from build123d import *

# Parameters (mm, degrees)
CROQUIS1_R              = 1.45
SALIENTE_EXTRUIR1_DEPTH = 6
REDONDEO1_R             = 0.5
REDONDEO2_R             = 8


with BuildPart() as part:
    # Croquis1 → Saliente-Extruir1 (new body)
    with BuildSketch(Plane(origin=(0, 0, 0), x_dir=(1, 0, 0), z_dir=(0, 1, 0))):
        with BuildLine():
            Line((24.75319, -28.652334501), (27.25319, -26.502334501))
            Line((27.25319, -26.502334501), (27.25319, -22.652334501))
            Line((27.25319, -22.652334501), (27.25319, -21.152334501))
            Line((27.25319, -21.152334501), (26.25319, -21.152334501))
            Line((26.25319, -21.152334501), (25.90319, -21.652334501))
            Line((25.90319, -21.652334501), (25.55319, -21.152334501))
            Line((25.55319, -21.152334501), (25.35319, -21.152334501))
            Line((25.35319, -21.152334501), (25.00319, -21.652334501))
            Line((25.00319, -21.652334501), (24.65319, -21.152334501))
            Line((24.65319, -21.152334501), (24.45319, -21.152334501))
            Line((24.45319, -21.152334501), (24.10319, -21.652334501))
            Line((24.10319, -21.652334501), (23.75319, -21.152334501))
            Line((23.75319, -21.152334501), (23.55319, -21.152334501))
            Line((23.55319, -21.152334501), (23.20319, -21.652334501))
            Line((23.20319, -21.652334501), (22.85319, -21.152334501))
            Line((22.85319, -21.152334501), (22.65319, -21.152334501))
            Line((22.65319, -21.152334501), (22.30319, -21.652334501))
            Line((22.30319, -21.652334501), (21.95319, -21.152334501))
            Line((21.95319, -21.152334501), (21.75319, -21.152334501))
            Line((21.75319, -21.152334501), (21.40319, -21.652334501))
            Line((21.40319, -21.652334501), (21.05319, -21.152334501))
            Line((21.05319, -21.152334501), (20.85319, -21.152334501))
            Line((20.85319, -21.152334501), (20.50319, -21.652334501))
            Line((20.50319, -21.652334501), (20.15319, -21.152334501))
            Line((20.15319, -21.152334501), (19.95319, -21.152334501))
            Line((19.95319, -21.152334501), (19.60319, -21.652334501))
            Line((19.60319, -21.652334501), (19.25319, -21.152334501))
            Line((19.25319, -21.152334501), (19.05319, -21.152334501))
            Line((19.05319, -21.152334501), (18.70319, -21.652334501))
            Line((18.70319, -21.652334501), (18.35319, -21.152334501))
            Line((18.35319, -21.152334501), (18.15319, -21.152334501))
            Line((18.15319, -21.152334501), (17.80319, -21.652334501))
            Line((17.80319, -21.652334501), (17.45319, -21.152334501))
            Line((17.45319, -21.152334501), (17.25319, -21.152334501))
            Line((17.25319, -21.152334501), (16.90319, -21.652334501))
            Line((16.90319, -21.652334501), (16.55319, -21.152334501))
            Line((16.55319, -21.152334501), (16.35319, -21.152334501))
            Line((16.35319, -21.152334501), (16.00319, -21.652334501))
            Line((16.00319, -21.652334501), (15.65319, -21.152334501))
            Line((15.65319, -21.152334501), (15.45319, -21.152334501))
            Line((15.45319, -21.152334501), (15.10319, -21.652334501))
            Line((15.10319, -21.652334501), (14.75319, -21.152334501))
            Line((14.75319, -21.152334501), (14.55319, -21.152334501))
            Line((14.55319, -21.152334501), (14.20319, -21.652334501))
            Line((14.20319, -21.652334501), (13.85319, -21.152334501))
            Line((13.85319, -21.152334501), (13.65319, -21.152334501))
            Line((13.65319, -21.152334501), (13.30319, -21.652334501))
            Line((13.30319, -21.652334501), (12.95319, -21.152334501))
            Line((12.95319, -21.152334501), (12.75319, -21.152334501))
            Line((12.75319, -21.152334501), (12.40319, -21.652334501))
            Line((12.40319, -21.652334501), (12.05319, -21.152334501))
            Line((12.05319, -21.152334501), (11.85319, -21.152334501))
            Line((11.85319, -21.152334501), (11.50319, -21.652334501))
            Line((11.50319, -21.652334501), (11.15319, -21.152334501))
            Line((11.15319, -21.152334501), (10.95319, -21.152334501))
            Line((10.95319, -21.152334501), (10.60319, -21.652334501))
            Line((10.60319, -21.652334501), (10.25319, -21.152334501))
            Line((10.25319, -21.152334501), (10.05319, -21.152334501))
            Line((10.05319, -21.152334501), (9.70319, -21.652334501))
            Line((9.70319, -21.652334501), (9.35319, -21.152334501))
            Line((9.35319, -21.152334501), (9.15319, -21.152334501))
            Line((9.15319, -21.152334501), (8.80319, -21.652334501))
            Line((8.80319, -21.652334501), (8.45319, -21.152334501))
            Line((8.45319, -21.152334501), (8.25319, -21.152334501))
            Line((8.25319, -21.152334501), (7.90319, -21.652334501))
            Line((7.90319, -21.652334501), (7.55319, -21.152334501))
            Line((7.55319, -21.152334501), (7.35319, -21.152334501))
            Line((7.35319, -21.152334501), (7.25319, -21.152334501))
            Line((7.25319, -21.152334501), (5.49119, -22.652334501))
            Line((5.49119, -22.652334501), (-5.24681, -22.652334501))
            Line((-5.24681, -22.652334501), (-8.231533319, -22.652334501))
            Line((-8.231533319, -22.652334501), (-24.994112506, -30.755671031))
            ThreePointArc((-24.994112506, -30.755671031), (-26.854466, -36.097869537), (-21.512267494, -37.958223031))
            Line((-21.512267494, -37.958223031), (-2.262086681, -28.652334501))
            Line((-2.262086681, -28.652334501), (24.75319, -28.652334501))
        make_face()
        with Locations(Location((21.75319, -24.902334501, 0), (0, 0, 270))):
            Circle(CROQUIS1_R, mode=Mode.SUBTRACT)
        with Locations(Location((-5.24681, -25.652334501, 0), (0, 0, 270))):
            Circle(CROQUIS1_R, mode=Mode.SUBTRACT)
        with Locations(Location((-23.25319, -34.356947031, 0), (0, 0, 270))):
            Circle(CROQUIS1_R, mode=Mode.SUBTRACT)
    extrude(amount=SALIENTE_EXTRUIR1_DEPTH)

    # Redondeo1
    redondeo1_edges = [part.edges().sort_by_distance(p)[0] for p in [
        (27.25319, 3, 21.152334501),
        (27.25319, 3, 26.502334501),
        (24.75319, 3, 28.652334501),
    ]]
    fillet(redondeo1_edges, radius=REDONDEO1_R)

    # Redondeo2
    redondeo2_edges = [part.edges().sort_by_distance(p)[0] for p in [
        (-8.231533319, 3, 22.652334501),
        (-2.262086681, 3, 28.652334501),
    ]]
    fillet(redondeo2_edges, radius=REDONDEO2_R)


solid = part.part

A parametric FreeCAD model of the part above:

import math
import FreeCAD as App
import Part
import Sketcher
from FreeCAD import Vector
Q = App.Units.Quantity


def edges_at(feature, points):
    """Names of the edges that pass closest to the given points."""
    edges = feature.Shape.Edges
    near = lambda p: min(range(len(edges)), key=lambda i: edges[i].distToShape(Part.Vertex(*p))[0])
    return sorted({f"Edge{near(p) + 1}" for p in points})

doc = App.newDocument("Part")
body = doc.addObject("PartDesign::Body", "Body")

sketch1 = doc.addObject("Sketcher::SketchObject", "Sketch")
body.addObject(sketch1)
sketch1.AttachmentSupport = (doc.XZ_Plane, [""])
sketch1.MapMode = "FlatFace"
sketch1.addGeometry([
    Part.LineSegment(Vector(24.75, 28.65, 0), Vector(27.25, 26.5, 0)),
    Part.LineSegment(Vector(27.25, 26.5, 0), Vector(27.25, 21.15, 0)),
    Part.LineSegment(Vector(27.25, 21.15, 0), Vector(26.25, 21.15, 0)),
    Part.LineSegment(Vector(26.25, 21.15, 0), Vector(25.9, 21.65, 0)),
    Part.LineSegment(Vector(25.9, 21.65, 0), Vector(25.55, 21.15, 0)),
    Part.LineSegment(Vector(25.55, 21.15, 0), Vector(25.35, 21.15, 0)),
    Part.LineSegment(Vector(25.35, 21.15, 0), Vector(25, 21.65, 0)),
    Part.LineSegment(Vector(25, 21.65, 0), Vector(24.65, 21.15, 0)),
    Part.LineSegment(Vector(24.65, 21.15, 0), Vector(24.45, 21.15, 0)),
    Part.LineSegment(Vector(24.45, 21.15, 0), Vector(24.1, 21.65, 0)),
    Part.LineSegment(Vector(24.1, 21.65, 0), Vector(23.75, 21.15, 0)),
    Part.LineSegment(Vector(23.75, 21.15, 0), Vector(23.55, 21.15, 0)),
    Part.LineSegment(Vector(23.55, 21.15, 0), Vector(23.2, 21.65, 0)),
    Part.LineSegment(Vector(23.2, 21.65, 0), Vector(22.85, 21.15, 0)),
    Part.LineSegment(Vector(22.85, 21.15, 0), Vector(22.65, 21.15, 0)),
    Part.LineSegment(Vector(22.65, 21.15, 0), Vector(22.3, 21.65, 0)),
    Part.LineSegment(Vector(22.3, 21.65, 0), Vector(21.95, 21.15, 0)),
    Part.LineSegment(Vector(21.95, 21.15, 0), Vector(21.75, 21.15, 0)),
    Part.LineSegment(Vector(21.75, 21.15, 0), Vector(21.4, 21.65, 0)),
    Part.LineSegment(Vector(21.4, 21.65, 0), Vector(21.05, 21.15, 0)),
    Part.LineSegment(Vector(21.05, 21.15, 0), Vector(20.85, 21.15, 0)),
    Part.LineSegment(Vector(20.85, 21.15, 0), Vector(20.5, 21.65, 0)),
    Part.LineSegment(Vector(20.5, 21.65, 0), Vector(20.15, 21.15, 0)),
    Part.LineSegment(Vector(20.15, 21.15, 0), Vector(19.95, 21.15, 0)),
    Part.LineSegment(Vector(19.95, 21.15, 0), Vector(19.6, 21.65, 0)),
    Part.LineSegment(Vector(19.6, 21.65, 0), Vector(19.25, 21.15, 0)),
    Part.LineSegment(Vector(19.25, 21.15, 0), Vector(19.05, 21.15, 0)),
    Part.LineSegment(Vector(19.05, 21.15, 0), Vector(18.7, 21.65, 0)),
    Part.LineSegment(Vector(18.7, 21.65, 0), Vector(18.35, 21.15, 0)),
    Part.LineSegment(Vector(18.35, 21.15, 0), Vector(18.15, 21.15, 0)),
    Part.LineSegment(Vector(18.15, 21.15, 0), Vector(17.8, 21.65, 0)),
    Part.LineSegment(Vector(17.8, 21.65, 0), Vector(17.45, 21.15, 0)),
    Part.LineSegment(Vector(17.45, 21.15, 0), Vector(17.25, 21.15, 0)),
    Part.LineSegment(Vector(17.25, 21.15, 0), Vector(16.9, 21.65, 0)),
    Part.LineSegment(Vector(16.9, 21.65, 0), Vector(16.55, 21.15, 0)),
    Part.LineSegment(Vector(16.55, 21.15, 0), Vector(16.35, 21.15, 0)),
    Part.LineSegment(Vector(16.35, 21.15, 0), Vector(16, 21.65, 0)),
    Part.LineSegment(Vector(16, 21.65, 0), Vector(15.65, 21.15, 0)),
    Part.LineSegment(Vector(15.65, 21.15, 0), Vector(15.45, 21.15, 0)),
    Part.LineSegment(Vector(15.45, 21.15, 0), Vector(15.1, 21.65, 0)),
    Part.LineSegment(Vector(15.1, 21.65, 0), Vector(14.75, 21.15, 0)),
    Part.LineSegment(Vector(14.75, 21.15, 0), Vector(14.55, 21.15, 0)),
    Part.LineSegment(Vector(14.55, 21.15, 0), Vector(14.2, 21.65, 0)),
    Part.LineSegment(Vector(14.2, 21.65, 0), Vector(13.85, 21.15, 0)),
    Part.LineSegment(Vector(13.85, 21.15, 0), Vector(13.65, 21.15, 0)),
    Part.LineSegment(Vector(13.65, 21.15, 0), Vector(13.3, 21.65, 0)),
    Part.LineSegment(Vector(13.3, 21.65, 0), Vector(12.95, 21.15, 0)),
    Part.LineSegment(Vector(12.95, 21.15, 0), Vector(12.75, 21.15, 0)),
    Part.LineSegment(Vector(12.75, 21.15, 0), Vector(12.4, 21.65, 0)),
    Part.LineSegment(Vector(12.4, 21.65, 0), Vector(12.05, 21.15, 0)),
    Part.LineSegment(Vector(12.05, 21.15, 0), Vector(11.85, 21.15, 0)),
    Part.LineSegment(Vector(11.85, 21.15, 0), Vector(11.5, 21.65, 0)),
    Part.LineSegment(Vector(11.5, 21.65, 0), Vector(11.15, 21.15, 0)),
    Part.LineSegment(Vector(11.15, 21.15, 0), Vector(10.95, 21.15, 0)),
    Part.LineSegment(Vector(10.95, 21.15, 0), Vector(10.6, 21.65, 0)),
    Part.LineSegment(Vector(10.6, 21.65, 0), Vector(10.25, 21.15, 0)),
    Part.LineSegment(Vector(10.25, 21.15, 0), Vector(10.05, 21.15, 0)),
    Part.LineSegment(Vector(10.05, 21.15, 0), Vector(9.7, 21.65, 0)),
    Part.LineSegment(Vector(9.7, 21.65, 0), Vector(9.35, 21.15, 0)),
    Part.LineSegment(Vector(9.35, 21.15, 0), Vector(9.15, 21.15, 0)),
    Part.LineSegment(Vector(9.15, 21.15, 0), Vector(8.8, 21.65, 0)),
    Part.LineSegment(Vector(8.8, 21.65, 0), Vector(8.45, 21.15, 0)),
    Part.LineSegment(Vector(8.45, 21.15, 0), Vector(8.25, 21.15, 0)),
    Part.LineSegment(Vector(8.25, 21.15, 0), Vector(7.9, 21.65, 0)),
    Part.LineSegment(Vector(7.9, 21.65, 0), Vector(7.55, 21.15, 0)),
    Part.LineSegment(Vector(7.55, 21.15, 0), Vector(7.25, 21.15, 0)),
    Part.LineSegment(Vector(7.25, 21.15, 0), Vector(5.49, 22.65, 0)),
    Part.LineSegment(Vector(5.49, 22.65, 0), Vector(-8.23, 22.65, 0)),
    Part.LineSegment(Vector(-8.23, 22.65, 0), Vector(-24.99, 30.76, 0)),
    Part.ArcOfCircle(Part.Circle(Vector(-23.25, 34.36, 0), Vector(0, 0, 1), 4), math.radians(64), math.radians(244)),
    Part.LineSegment(Vector(-21.51, 37.96, 0), Vector(-2.26, 28.65, 0)),
    Part.LineSegment(Vector(-2.26, 28.65, 0), Vector(24.75, 28.65, 0)),
    Part.Circle(Vector(-23.25, 34.36, 0), Vector(0, 0, 1), 1.45),
    Part.Circle(Vector(-5.25, 25.65, 0), Vector(0, 0, 1), 1.45),
    Part.Circle(Vector(21.75, 24.9, 0), Vector(0, 0, 1), 1.45),
], False)
sketch1.addConstraint([
    Sketcher.Constraint("Coincident", 0, 2, 1, 1),
    Sketcher.Constraint("Coincident", 1, 2, 2, 1),
    Sketcher.Constraint("Coincident", 2, 2, 3, 1),
    Sketcher.Constraint("Coincident", 3, 2, 4, 1),
    Sketcher.Constraint("Coincident", 4, 2, 5, 1),
    Sketcher.Constraint("Coincident", 5, 2, 6, 1),
    Sketcher.Constraint("Coincident", 6, 2, 7, 1),
    Sketcher.Constraint("Coincident", 7, 2, 8, 1),
    Sketcher.Constraint("Coincident", 8, 2, 9, 1),
    Sketcher.Constraint("Coincident", 9, 2, 10, 1),
    Sketcher.Constraint("Coincident", 10, 2, 11, 1),
    Sketcher.Constraint("Coincident", 11, 2, 12, 1),
    Sketcher.Constraint("Coincident", 12, 2, 13, 1),
    Sketcher.Constraint("Coincident", 13, 2, 14, 1),
    Sketcher.Constraint("Coincident", 14, 2, 15, 1),
    Sketcher.Constraint("Coincident", 15, 2, 16, 1),
    Sketcher.Constraint("Coincident", 16, 2, 17, 1),
    Sketcher.Constraint("Coincident", 17, 2, 18, 1),
    Sketcher.Constraint("Coincident", 18, 2, 19, 1),
    Sketcher.Constraint("Coincident", 19, 2, 20, 1),
    Sketcher.Constraint("Coincident", 20, 2, 21, 1),
    Sketcher.Constraint("Coincident", 21, 2, 22, 1),
    Sketcher.Constraint("Coincident", 22, 2, 23, 1),
    Sketcher.Constraint("Coincident", 23, 2, 24, 1),
    Sketcher.Constraint("Coincident", 24, 2, 25, 1),
    Sketcher.Constraint("Coincident", 25, 2, 26, 1),
    Sketcher.Constraint("Coincident", 26, 2, 27, 1),
    Sketcher.Constraint("Coincident", 27, 2, 28, 1),
    Sketcher.Constraint("Coincident", 28, 2, 29, 1),
    Sketcher.Constraint("Coincident", 29, 2, 30, 1),
    Sketcher.Constraint("Coincident", 30, 2, 31, 1),
    Sketcher.Constraint("Coincident", 31, 2, 32, 1),
    Sketcher.Constraint("Coincident", 32, 2, 33, 1),
    Sketcher.Constraint("Coincident", 33, 2, 34, 1),
    Sketcher.Constraint("Coincident", 34, 2, 35, 1),
    Sketcher.Constraint("Coincident", 35, 2, 36, 1),
    Sketcher.Constraint("Coincident", 36, 2, 37, 1),
    Sketcher.Constraint("Coincident", 37, 2, 38, 1),
    Sketcher.Constraint("Coincident", 38, 2, 39, 1),
    Sketcher.Constraint("Coincident", 39, 2, 40, 1),
    Sketcher.Constraint("Coincident", 40, 2, 41, 1),
    Sketcher.Constraint("Coincident", 41, 2, 42, 1),
    Sketcher.Constraint("Coincident", 42, 2, 43, 1),
    Sketcher.Constraint("Coincident", 43, 2, 44, 1),
    Sketcher.Constraint("Coincident", 44, 2, 45, 1),
    Sketcher.Constraint("Coincident", 45, 2, 46, 1),
    Sketcher.Constraint("Coincident", 46, 2, 47, 1),
    Sketcher.Constraint("Coincident", 47, 2, 48, 1),
    Sketcher.Constraint("Coincident", 48, 2, 49, 1),
    Sketcher.Constraint("Coincident", 49, 2, 50, 1),
    Sketcher.Constraint("Coincident", 50, 2, 51, 1),
    Sketcher.Constraint("Coincident", 51, 2, 52, 1),
    Sketcher.Constraint("Coincident", 52, 2, 53, 1),
    Sketcher.Constraint("Coincident", 53, 2, 54, 1),
    Sketcher.Constraint("Coincident", 54, 2, 55, 1),
    Sketcher.Constraint("Coincident", 55, 2, 56, 1),
    Sketcher.Constraint("Coincident", 56, 2, 57, 1),
    Sketcher.Constraint("Coincident", 57, 2, 58, 1),
    Sketcher.Constraint("Coincident", 58, 2, 59, 1),
    Sketcher.Constraint("Coincident", 59, 2, 60, 1),
    Sketcher.Constraint("Coincident", 60, 2, 61, 1),
    Sketcher.Constraint("Coincident", 61, 2, 62, 1),
    Sketcher.Constraint("Coincident", 62, 2, 63, 1),
    Sketcher.Constraint("Coincident", 63, 2, 64, 1),
    Sketcher.Constraint("Coincident", 64, 2, 65, 1),
    Sketcher.Constraint("Coincident", 65, 2, 66, 1),
    Sketcher.Constraint("Coincident", 66, 2, 67, 1),
    Sketcher.Constraint("Coincident", 67, 2, 68, 1),
    Sketcher.Constraint("Tangent", 68, 2, 69, 2),
    Sketcher.Constraint("Tangent", 69, 1, 70, 1),
    Sketcher.Constraint("Coincident", 70, 2, 71, 1),
    Sketcher.Constraint("Coincident", 71, 2, 0, 1),
    Sketcher.Constraint("Vertical", 1),
    Sketcher.Constraint("Horizontal", 2),
    Sketcher.Constraint("Horizontal", 5),
    Sketcher.Constraint("Horizontal", 8),
    Sketcher.Constraint("Horizontal", 11),
    Sketcher.Constraint("Horizontal", 14),
    Sketcher.Constraint("Horizontal", 17),
    Sketcher.Constraint("Horizontal", 20),
    Sketcher.Constraint("Horizontal", 23),
    Sketcher.Constraint("Horizontal", 26),
    Sketcher.Constraint("Horizontal", 29),
    Sketcher.Constraint("Horizontal", 32),
    Sketcher.Constraint("Horizontal", 35),
    Sketcher.Constraint("Horizontal", 38),
    Sketcher.Constraint("Horizontal", 41),
    Sketcher.Constraint("Horizontal", 44),
    Sketcher.Constraint("Horizontal", 47),
    Sketcher.Constraint("Horizontal", 50),
    Sketcher.Constraint("Horizontal", 53),
    Sketcher.Constraint("Horizontal", 56),
    Sketcher.Constraint("Horizontal", 59),
    Sketcher.Constraint("Horizontal", 62),
    Sketcher.Constraint("Horizontal", 65),
    Sketcher.Constraint("Horizontal", 67),
    Sketcher.Constraint("Horizontal", 71),
    Sketcher.Constraint("Coincident", 72, 3, 69, 3),
    Sketcher.Constraint("Equal", 72, 73),
    Sketcher.Constraint("Equal", 73, 74),
    Sketcher.Constraint("Parallel", 3, 6),
    Sketcher.Constraint("Parallel", 4, 7),
    Sketcher.Constraint("Parallel", 6, 9),
    Sketcher.Constraint("Parallel", 7, 10),
    Sketcher.Constraint("Parallel", 9, 12),
    Sketcher.Constraint("Parallel", 10, 13),
    Sketcher.Constraint("Parallel", 12, 15),
    Sketcher.Constraint("Parallel", 13, 16),
    Sketcher.Constraint("Parallel", 15, 18),
    Sketcher.Constraint("Parallel", 16, 19),
    Sketcher.Constraint("Parallel", 18, 21),
    Sketcher.Constraint("Parallel", 19, 22),
    Sketcher.Constraint("Parallel", 21, 24),
    Sketcher.Constraint("Parallel", 22, 25),
    Sketcher.Constraint("Parallel", 24, 27),
    Sketcher.Constraint("Parallel", 25, 28),
    Sketcher.Constraint("Parallel", 27, 30),
    Sketcher.Constraint("Parallel", 28, 31),
    Sketcher.Constraint("Parallel", 30, 33),
    Sketcher.Constraint("Parallel", 31, 34),
    Sketcher.Constraint("Parallel", 33, 36),
    Sketcher.Constraint("Parallel", 34, 37),
    Sketcher.Constraint("Parallel", 36, 39),
    Sketcher.Constraint("Parallel", 37, 40),
    Sketcher.Constraint("Parallel", 39, 42),
    Sketcher.Constraint("Parallel", 40, 43),
    Sketcher.Constraint("Parallel", 42, 45),
    Sketcher.Constraint("Parallel", 43, 46),
    Sketcher.Constraint("Parallel", 45, 48),
    Sketcher.Constraint("Parallel", 46, 49),
    Sketcher.Constraint("Parallel", 48, 51),
    Sketcher.Constraint("Parallel", 49, 52),
    Sketcher.Constraint("Parallel", 51, 54),
    Sketcher.Constraint("Parallel", 52, 55),
    Sketcher.Constraint("Parallel", 54, 57),
    Sketcher.Constraint("Parallel", 55, 58),
    Sketcher.Constraint("Parallel", 57, 60),
    Sketcher.Constraint("Parallel", 58, 61),
    Sketcher.Constraint("Parallel", 60, 63),
    Sketcher.Constraint("Parallel", 61, 64),
    Sketcher.Constraint("Parallel", 68, 70),
    Sketcher.Constraint("Horizontal", 2, 2, 4, 2),
    Sketcher.Constraint("Horizontal", 3, 2, 6, 2),
    Sketcher.Constraint("Horizontal", 5, 2, 7, 2),
    Sketcher.Constraint("Horizontal", 6, 2, 9, 2),
    Sketcher.Constraint("Horizontal", 8, 2, 10, 2),
    Sketcher.Constraint("Horizontal", 9, 2, 12, 2),
    Sketcher.Constraint("Horizontal", 11, 2, 13, 2),
    Sketcher.Constraint("Horizontal", 12, 2, 15, 2),
    Sketcher.Constraint("Horizontal", 14, 2, 16, 2),
    Sketcher.Constraint("Horizontal", 15, 2, 18, 2),
    Sketcher.Constraint("Horizontal", 17, 2, 19, 2),
    Sketcher.Constraint("Horizontal", 18, 2, 21, 2),
    Sketcher.Constraint("Horizontal", 20, 2, 22, 2),
    Sketcher.Constraint("Horizontal", 21, 2, 24, 2),
    Sketcher.Constraint("Horizontal", 23, 2, 25, 2),
    Sketcher.Constraint("Horizontal", 24, 2, 27, 2),
    Sketcher.Constraint("Horizontal", 26, 2, 28, 2),
    Sketcher.Constraint("Horizontal", 27, 2, 30, 2),
    Sketcher.Constraint("Horizontal", 29, 2, 31, 2),
    Sketcher.Constraint("Horizontal", 30, 2, 33, 2),
    Sketcher.Constraint("Horizontal", 32, 2, 34, 2),
    Sketcher.Constraint("Horizontal", 33, 2, 36, 2),
    Sketcher.Constraint("Horizontal", 35, 2, 37, 2),
    Sketcher.Constraint("Horizontal", 36, 2, 39, 2),
    Sketcher.Constraint("Horizontal", 38, 2, 40, 2),
    Sketcher.Constraint("Horizontal", 39, 2, 42, 2),
    Sketcher.Constraint("Horizontal", 41, 2, 43, 2),
    Sketcher.Constraint("Horizontal", 42, 2, 45, 2),
    Sketcher.Constraint("Horizontal", 44, 2, 46, 2),
    Sketcher.Constraint("Horizontal", 45, 2, 48, 2),
    Sketcher.Constraint("Horizontal", 47, 2, 49, 2),
    Sketcher.Constraint("Horizontal", 48, 2, 51, 2),
    Sketcher.Constraint("Horizontal", 50, 2, 52, 2),
    Sketcher.Constraint("Horizontal", 51, 2, 54, 2),
    Sketcher.Constraint("Horizontal", 53, 2, 55, 2),
    Sketcher.Constraint("Horizontal", 54, 2, 57, 2),
    Sketcher.Constraint("Horizontal", 56, 2, 58, 2),
    Sketcher.Constraint("Horizontal", 57, 2, 60, 2),
    Sketcher.Constraint("Horizontal", 59, 2, 61, 2),
    Sketcher.Constraint("Horizontal", 60, 2, 63, 2),
    Sketcher.Constraint("Horizontal", 62, 2, 64, 2),
    Sketcher.Constraint("Vertical", 74, 3, 17, 2),
    Sketcher.Constraint("Equal", 5, 8),
    Sketcher.Constraint("Equal", 8, 11),
    Sketcher.Constraint("Equal", 11, 14),
    Sketcher.Constraint("Equal", 14, 17),
    Sketcher.Constraint("Equal", 17, 20),
    Sketcher.Constraint("Equal", 20, 23),
    Sketcher.Constraint("Equal", 23, 26),
    Sketcher.Constraint("Equal", 26, 29),
    Sketcher.Constraint("Equal", 29, 32),
    Sketcher.Constraint("Equal", 32, 35),
    Sketcher.Constraint("Equal", 35, 38),
    Sketcher.Constraint("Equal", 38, 41),
    Sketcher.Constraint("Equal", 41, 44),
    Sketcher.Constraint("Equal", 44, 47),
    Sketcher.Constraint("Equal", 47, 50),
    Sketcher.Constraint("Equal", 50, 53),
    Sketcher.Constraint("Equal", 53, 56),
    Sketcher.Constraint("Equal", 56, 59),
    Sketcher.Constraint("Equal", 59, 62),
    Sketcher.Constraint("Equal", 3, 4),
    Sketcher.Constraint("Radius", 69, Q("4 mm")),
    Sketcher.Constraint("Diameter", 72, Q("2.9 mm")),
    Sketcher.Constraint("DistanceX", 2, 2, 2, 1, Q("1 mm")),
    Sketcher.Constraint("DistanceX", 5, 2, 5, 1, Q("0.2 mm")),
    Sketcher.Constraint("DistanceX", 65, 2, 65, 1, Q("0.3 mm")),
    Sketcher.Constraint("DistanceY", 1, 2, 1, 1, Q("5.35 mm")),
    Sketcher.Constraint("Distance", 66, Q("2.31401 mm")),
    Sketcher.Constraint("Distance", 68, Q("18.618489 mm")),
    Sketcher.Constraint("Distance", 70, Q("21.381511 mm")),
    Sketcher.Constraint("DistanceX", 67, 2, 67, 1, Q("13.722723 mm")),
    Sketcher.Constraint("DistanceX", 71, 1, 71, 2, Q("27.015277 mm")),
    Sketcher.Constraint("DistanceX", 69, 3, -1, 1, Q("23.25319 mm")),
    Sketcher.Constraint("DistanceX", 73, 3, -1, 1, Q("5.24681 mm")),
    Sketcher.Constraint("DistanceX", -1, 1, 74, 3, Q("21.75319 mm")),
    Sketcher.Constraint("DistanceX", -1, 1, 0, 2, Q("27.25319 mm")),
    Sketcher.Constraint("DistanceX", -1, 1, 66, 2, Q("5.49119 mm")),
    Sketcher.Constraint("DistanceY", -1, 1, 68, 2, Q("30.755671 mm")),
    Sketcher.Constraint("Distance", 3, Q("0.610328 mm")),
    Sketcher.Constraint("DistanceY", -1, 1, 73, 3, Q("25.652335 mm")),
    Sketcher.Constraint("DistanceY", -1, 1, 74, 3, Q("24.902335 mm")),
])
pad1 = doc.addObject("PartDesign::Pad", "Pad")
body.addObject(pad1)
pad1.Profile = sketch1
pad1.Length = 6
pad1.Reversed = True
doc.recompute()

fillet = doc.addObject("PartDesign::Fillet", "Fillet")
body.addObject(fillet)
fillet.Base = (pad1, edges_at(pad1, [(27.253, 3, 21.152), (27.253, 3, 26.502), (24.753, 3, 28.652)]))
fillet.Radius = 0.5
doc.recompute()

fillet2 = doc.addObject("PartDesign::Fillet", "Fillet001")
body.addObject(fillet2)
fillet2.Base = (fillet, edges_at(fillet, [(-8.232, 3, 22.652), (-2.262, 3, 28.652)]))
fillet2.Radius = 8

doc.recompute()
